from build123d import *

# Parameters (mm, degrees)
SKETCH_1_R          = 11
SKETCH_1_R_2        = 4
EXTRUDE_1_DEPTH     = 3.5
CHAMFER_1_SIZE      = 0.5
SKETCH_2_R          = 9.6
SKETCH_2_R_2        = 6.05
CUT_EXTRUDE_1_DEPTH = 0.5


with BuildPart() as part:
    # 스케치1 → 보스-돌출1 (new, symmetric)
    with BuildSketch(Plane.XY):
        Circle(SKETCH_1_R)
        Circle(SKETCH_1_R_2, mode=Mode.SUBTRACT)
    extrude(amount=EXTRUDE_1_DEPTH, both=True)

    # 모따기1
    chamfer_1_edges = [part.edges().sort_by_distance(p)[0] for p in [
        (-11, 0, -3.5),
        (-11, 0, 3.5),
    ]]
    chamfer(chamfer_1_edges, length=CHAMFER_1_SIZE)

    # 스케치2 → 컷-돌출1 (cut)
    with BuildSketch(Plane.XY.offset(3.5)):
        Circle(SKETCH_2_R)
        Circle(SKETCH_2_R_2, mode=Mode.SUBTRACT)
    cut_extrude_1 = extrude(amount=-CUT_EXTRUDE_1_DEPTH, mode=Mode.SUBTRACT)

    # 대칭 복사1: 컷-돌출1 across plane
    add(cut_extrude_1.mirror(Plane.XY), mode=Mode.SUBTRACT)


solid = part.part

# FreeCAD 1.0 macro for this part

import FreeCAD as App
import Part
import Sketcher


def edges_at(feature, points):
    """Names of the edges that pass closest to the given points."""
    edges = feature.Shape.Edges
    near = lambda p: min(range(len(edges)), key=lambda i: edges[i].distToShape(Part.Vertex(*p))[0])
    return sorted({f"Edge{near(p) + 1}" for p in points})

doc = App.newDocument("Part")
body = doc.addObject("PartDesign::Body", "Body")

sketch1 = doc.addObject("Sketcher::SketchObject", "Sketch")
body.addObject(sketch1)
sketch1.AttachmentSupport = (doc.XY_Plane, [""])
sketch1.MapMode = "FlatFace"
sketch1.addGeometry([
    Part.Circle(App.Vector(0, 0, 0), App.Vector(0, 0, 1), 11),
    Part.Circle(App.Vector(0, 0, 0), App.Vector(0, 0, 1), 4),
], False)
sketch1.addConstraint([
    Sketcher.Constraint("Coincident", 0, 3, -1, 1),
    Sketcher.Constraint("Coincident", 1, 3, -1, 1),
    Sketcher.Constraint("Diameter", 0, 22.0),
    Sketcher.Constraint("Diameter", 1, 8.0),
])
pad1 = doc.addObject("PartDesign::Pad", "Pad")
body.addObject(pad1)
pad1.Profile = sketch1
pad1.Length = 7
pad1.Midplane = True
doc.recompute()

chamfer = doc.addObject("PartDesign::Chamfer", "Chamfer")
body.addObject(chamfer)
chamfer.Base = (pad1, edges_at(pad1, [(-11, 0, -3.5), (-11, 0, 3.5)]))
chamfer.Size = 0.5

sketch2 = doc.addObject("Sketcher::SketchObject", "Sketch001")
body.addObject(sketch2)
sketch2.AttachmentSupport = (doc.XY_Plane, [""])
sketch2.MapMode = "FlatFace"
sketch2.AttachmentOffset = App.Placement(App.Vector(0, 0, 3.5), App.Rotation())
sketch2.addGeometry([
    Part.Circle(App.Vector(0, 0, 0), App.Vector(0, 0, 1), 10),
    Part.Circle(App.Vector(0, 0, 0), App.Vector(0, 0, 1), 6),
], False)
sketch2.addConstraint([
    Sketcher.Constraint("Coincident", 0, 3, -1, 1),
    Sketcher.Constraint("Coincident", 1, 3, -1, 1),
    Sketcher.Constraint("Diameter", 0, 19.2),
    Sketcher.Constraint("Diameter", 1, 12.1),
])
pocket1 = doc.addObject("PartDesign::Pocket", "Pocket")
body.addObject(pocket1)
pocket1.Profile = sketch2
pocket1.Length = 0.5
doc.recompute()

mirrored = doc.addObject("PartDesign::Mirrored", "Mirrored")
body.addObject(mirrored)
mirrored.Originals = [pocket1]
mirrored.MirrorPlane = (doc.XY_Plane, [""])
body.Tip = mirrored

doc.recompute()
